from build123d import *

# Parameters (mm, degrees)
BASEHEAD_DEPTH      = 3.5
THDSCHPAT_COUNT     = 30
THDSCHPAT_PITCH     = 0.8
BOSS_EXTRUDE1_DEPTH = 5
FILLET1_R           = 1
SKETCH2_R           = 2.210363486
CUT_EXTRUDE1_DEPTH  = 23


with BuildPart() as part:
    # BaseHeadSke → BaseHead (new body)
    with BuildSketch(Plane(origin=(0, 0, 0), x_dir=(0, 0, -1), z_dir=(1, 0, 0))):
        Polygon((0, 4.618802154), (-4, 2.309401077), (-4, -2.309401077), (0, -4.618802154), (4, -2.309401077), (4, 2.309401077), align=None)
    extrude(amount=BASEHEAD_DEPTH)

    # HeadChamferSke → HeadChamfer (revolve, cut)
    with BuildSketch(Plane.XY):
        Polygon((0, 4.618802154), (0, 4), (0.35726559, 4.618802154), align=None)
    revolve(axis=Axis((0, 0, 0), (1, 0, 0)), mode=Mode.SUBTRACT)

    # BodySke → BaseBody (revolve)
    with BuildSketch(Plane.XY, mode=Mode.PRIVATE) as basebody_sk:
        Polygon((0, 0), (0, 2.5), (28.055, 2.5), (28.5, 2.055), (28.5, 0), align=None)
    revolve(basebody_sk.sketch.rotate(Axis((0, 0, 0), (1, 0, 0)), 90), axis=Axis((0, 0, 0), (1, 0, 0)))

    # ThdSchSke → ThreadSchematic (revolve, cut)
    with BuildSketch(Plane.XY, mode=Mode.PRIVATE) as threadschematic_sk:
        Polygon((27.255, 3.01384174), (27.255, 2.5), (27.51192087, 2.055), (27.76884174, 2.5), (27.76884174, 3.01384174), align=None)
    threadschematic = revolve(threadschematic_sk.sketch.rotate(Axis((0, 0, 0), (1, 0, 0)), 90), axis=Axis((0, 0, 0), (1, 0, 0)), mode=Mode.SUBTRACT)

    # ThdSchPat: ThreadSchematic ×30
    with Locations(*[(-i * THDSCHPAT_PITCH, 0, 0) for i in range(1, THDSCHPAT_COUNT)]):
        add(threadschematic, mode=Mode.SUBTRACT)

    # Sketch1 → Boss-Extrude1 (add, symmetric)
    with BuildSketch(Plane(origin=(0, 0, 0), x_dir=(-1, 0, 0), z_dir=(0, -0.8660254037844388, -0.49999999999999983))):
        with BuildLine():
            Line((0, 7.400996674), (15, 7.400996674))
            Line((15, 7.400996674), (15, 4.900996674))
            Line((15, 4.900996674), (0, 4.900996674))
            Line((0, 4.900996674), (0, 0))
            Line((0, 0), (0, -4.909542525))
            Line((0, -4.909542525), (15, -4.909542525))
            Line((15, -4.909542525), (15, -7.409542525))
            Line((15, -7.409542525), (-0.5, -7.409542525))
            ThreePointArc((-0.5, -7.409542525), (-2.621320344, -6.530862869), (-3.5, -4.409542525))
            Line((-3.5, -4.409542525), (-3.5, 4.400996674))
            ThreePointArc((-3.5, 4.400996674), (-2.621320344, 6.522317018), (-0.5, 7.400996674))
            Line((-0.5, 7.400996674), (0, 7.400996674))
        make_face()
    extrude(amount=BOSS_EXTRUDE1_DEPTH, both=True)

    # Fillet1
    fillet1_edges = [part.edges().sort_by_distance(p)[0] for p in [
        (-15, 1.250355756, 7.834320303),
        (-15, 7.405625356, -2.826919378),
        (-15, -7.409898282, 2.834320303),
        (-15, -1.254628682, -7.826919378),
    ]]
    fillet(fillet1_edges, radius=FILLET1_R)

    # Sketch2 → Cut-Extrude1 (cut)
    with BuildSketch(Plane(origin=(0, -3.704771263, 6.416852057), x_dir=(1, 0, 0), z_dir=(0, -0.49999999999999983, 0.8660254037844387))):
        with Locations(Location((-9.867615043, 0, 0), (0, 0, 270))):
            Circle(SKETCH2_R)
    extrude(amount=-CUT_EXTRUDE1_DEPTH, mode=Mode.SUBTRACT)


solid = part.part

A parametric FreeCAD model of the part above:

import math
import FreeCAD as App
import Part
import Sketcher

V = App.Vector
Q = App.Units.Quantity


def edges_at(feature, points):
    """Names of the edges that pass closest to the given points."""
    edges = feature.Shape.Edges
    near = lambda p: min(range(len(edges)), key=lambda i: edges[i].distToShape(Part.Vertex(*p))[0])
    return sorted({f"Edge{near(p) + 1}" for p in points})

doc = App.newDocument("Part")
body = doc.addObject("PartDesign::Body", "Body")

# Sketch on YZ plane
sketch1 = doc.addObject("Sketcher::SketchObject", "Sketch")
body.addObject(sketch1)
sketch1.AttachmentSupport = (doc.YZ_Plane, [""])
sketch1.MapMode = "FlatFace"
sketch1.addGeometry(Part.LineSegment(V(4.6, 0, 0), V(2.3, 4, 0)), False)
sketch1.addGeometry(Part.LineSegment(V(2.3, 4, 0), V(-2.3, 4, 0)), False)
sketch1.addGeometry(Part.LineSegment(V(-2.3, 4, 0), V(-4.6, 0, 0)), False)
sketch1.addGeometry(Part.LineSegment(V(-4.6, 0, 0), V(-2.3, -4, 0)), False)
sketch1.addGeometry(Part.LineSegment(V(-2.3, -4, 0), V(2.3, -4, 0)), False)
sketch1.addGeometry(Part.LineSegment(V(2.3, -4, 0), V(4.6, 0, 0)), False)
sketch1.addConstraint(Sketcher.Constraint("Coincident", 0, 2, 1, 1))
sketch1.addConstraint(Sketcher.Constraint("Coincident", 1, 2, 2, 1))
sketch1.addConstraint(Sketcher.Constraint("Coincident", 2, 2, 3, 1))
sketch1.addConstraint(Sketcher.Constraint("Coincident", 3, 2, 4, 1))
sketch1.addConstraint(Sketcher.Constraint("Coincident", 4, 2, 5, 1))
sketch1.addConstraint(Sketcher.Constraint("Coincident", 5, 2, 0, 1))
sketch1.addConstraint(Sketcher.Constraint("Horizontal", 1))
sketch1.addConstraint(Sketcher.Constraint("Horizontal", 4))
sketch1.addConstraint(Sketcher.Constraint("Symmetric", 0, 2, 3, 2, -1, 1))
sketch1.addConstraint(Sketcher.Constraint("Symmetric", 2, 2, 5, 2, -1, 1))
sketch1.addConstraint(Sketcher.Constraint("PointOnObject", 2, 2, -1))
sketch1.addConstraint(Sketcher.Constraint("Parallel", 2, 5))
sketch1.addConstraint(Sketcher.Constraint("Vertical", 1, 2, 3, 2))
sketch1.addConstraint(Sketcher.Constraint("Angle", 0, Q("120 deg")))
sketch1.addConstraint(Sketcher.Constraint("DistanceY", -1, 1, 0, 2, 4.0))
sketch1.addConstraint(Sketcher.Constraint("DistanceX", -1, 1, 0, 2, 2.309401))
pad1 = doc.addObject("PartDesign::Pad", "Pad")
body.addObject(pad1)
pad1.Profile = sketch1
pad1.Length = 3.5

# Sketch on XY plane
sketch2 = doc.addObject("Sketcher::SketchObject", "Sketch001")
body.addObject(sketch2)
sketch2.AttachmentSupport = (doc.XY_Plane, [""])
sketch2.MapMode = "FlatFace"
sketch2.addGeometry(Part.LineSegment(V(0, 4.62, 0), V(0, 4, 0)), False)
sketch2.addGeometry(Part.LineSegment(V(0, 4, 0), V(0.36, 4.62, 0)), False)
sketch2.addGeometry(Part.LineSegment(V(0.36, 4.62, 0), V(0, 4.62, 0)), False)
sketch2.addConstraint(Sketcher.Constraint("Coincident", 0, 2, 1, 1))
sketch2.addConstraint(Sketcher.Constraint("Coincident", 1, 2, 2, 1))
sketch2.addConstraint(Sketcher.Constraint("Coincident", 2, 2, 0, 1))
sketch2.addConstraint(Sketcher.Constraint("Vertical", 0))
sketch2.addConstraint(Sketcher.Constraint("Horizontal", 2))
sketch2.addConstraint(Sketcher.Constraint("PointOnObject", 0, 2, -2))
sketch2.addConstraint(Sketcher.Constraint("Angle", 1, Q("60 deg")))
sketch2.addConstraint(Sketcher.Constraint("DistanceY", -1, 1, 0, 2, 4.0))
sketch2.addConstraint(Sketcher.Constraint("Distance", 1, 0.714531))
groove = doc.addObject("PartDesign::Groove", "Groove")
body.addObject(groove)
groove.Profile = sketch2
groove.ReferenceAxis = (sketch2, ["H_Axis"])
groove.Angle = 360

# Sketch on XY plane
sketch3 = doc.addObject("Sketcher::SketchObject", "Sketch002")
body.addObject(sketch3)
sketch3.AttachmentSupport = (doc.XY_Plane, [""])
sketch3.MapMode = "FlatFace"
sketch3.addGeometry(Part.LineSegment(V(0, 2.5, 0), V(0, 0, 0)), False)
sketch3.addGeometry(Part.LineSegment(V(0, 0, 0), V(28.5, 0, 0)), False)
sketch3.addGeometry(Part.LineSegment(V(28.5, 0, 0), V(28.5, 2.1, 0)), False)
sketch3.addGeometry(Part.LineSegment(V(28.5, 2.1, 0), V(28.1, 2.5, 0)), False)
sketch3.addGeometry(Part.LineSegment(V(28.1, 2.5, 0), V(0, 2.5, 0)), False)
sketch3.addConstraint(Sketcher.Constraint("Coincident", 0, 2, 1, 1))
sketch3.addConstraint(Sketcher.Constraint("Coincident", 1, 2, 2, 1))
sketch3.addConstraint(Sketcher.Constraint("Coincident", 2, 2, 3, 1))
sketch3.addConstraint(Sketcher.Constraint("Coincident", 3, 2, 4, 1))
sketch3.addConstraint(Sketcher.Constraint("Coincident", 4, 2, 0, 1))
sketch3.addConstraint(Sketcher.Constraint("Vertical", 0))
sketch3.addConstraint(Sketcher.Constraint("Horizontal", 1))
sketch3.addConstraint(Sketcher.Constraint("Vertical", 2))
sketch3.addConstraint(Sketcher.Constraint("Horizontal", 4))
sketch3.addConstraint(Sketcher.Constraint("Coincident", 0, 2, -1, 1))
sketch3.addConstraint(Sketcher.Constraint("Angle", 3, Q("135 deg")))
sketch3.addConstraint(Sketcher.Constraint("DistanceX", 1, 1, 1, 2, 28.5))
sketch3.addConstraint(Sketcher.Constraint("DistanceY", 0, 2, 0, 1, 2.5))
sketch3.addConstraint(Sketcher.Constraint("DistanceX", 4, 2, 4, 1, 28.055))
revolution = doc.addObject("PartDesign::Revolution", "Revolution")
body.addObject(revolution)
revolution.Profile = sketch3
revolution.ReferenceAxis = (sketch3, ["H_Axis"])
revolution.Angle = 360

# Sketch on XY plane
sketch4 = doc.addObject("Sketcher::SketchObject", "Sketch003")
body.addObject(sketch4)
sketch4.AttachmentSupport = (doc.XY_Plane, [""])
sketch4.MapMode = "FlatFace"
sketch4.addGeometry(Part.LineSegment(V(27.3, 3, 0), V(27.3, 2.5, 0)), False)
sketch4.addGeometry(Part.LineSegment(V(27.3, 2.5, 0), V(27.5, 2.1, 0)), False)
sketch4.addGeometry(Part.LineSegment(V(27.5, 2.1, 0), V(27.8, 2.5, 0)), False)
sketch4.addGeometry(Part.LineSegment(V(27.8, 2.5, 0), V(27.8, 3, 0)), False)
sketch4.addGeometry(Part.LineSegment(V(27.8, 3, 0), V(27.3, 3, 0)), False)
sketch4.addConstraint(Sketcher.Constraint("Coincident", 0, 2, 1, 1))
sketch4.addConstraint(Sketcher.Constraint("Coincident", 1, 2, 2, 1))
sketch4.addConstraint(Sketcher.Constraint("Coincident", 2, 2, 3, 1))
sketch4.addConstraint(Sketcher.Constraint("Coincident", 3, 2, 4, 1))
sketch4.addConstraint(Sketcher.Constraint("Coincident", 4, 2, 0, 1))
sketch4.addConstraint(Sketcher.Constraint("Vertical", 0))
sketch4.addConstraint(Sketcher.Constraint("Vertical", 3))
sketch4.addConstraint(Sketcher.Constraint("Horizontal", 4))
sketch4.addConstraint(Sketcher.Constraint("Horizontal", 0, 2, 2, 2))
sketch4.addConstraint(Sketcher.Constraint("Equal", 4, 0))
sketch4.addConstraint(Sketcher.Constraint("Equal", 1, 2))
sketch4.addConstraint(Sketcher.Constraint("Angle", 1, Q("-60 deg")))
sketch4.addConstraint(Sketcher.Constraint("DistanceY", -1, 1, 0, 2, 2.5))
sketch4.addConstraint(Sketcher.Constraint("DistanceX", -1, 1, 0, 2, 27.255))
sketch4.addConstraint(Sketcher.Constraint("DistanceY", -1, 1, 1, 2, 2.055))
groove2 = doc.addObject("PartDesign::Groove", "Groove001")
body.addObject(groove2)
groove2.Profile = sketch4
groove2.ReferenceAxis = (sketch4, ["H_Axis"])
groove2.Angle = 360
doc.recompute()

linearpattern = doc.addObject("PartDesign::LinearPattern", "LinearPattern")
body.addObject(linearpattern)
linearpattern.Originals = [groove2]
linearpattern.Direction = (doc.X_Axis, [""])
linearpattern.Mode = "offset"
linearpattern.Offset = 0.8
linearpattern.Occurrences = 30
linearpattern.Reversed = True
body.Tip = linearpattern

# Sketch on an angled plane
sketch5 = doc.addObject("Sketcher::SketchObject", "Sketch004")
body.addObject(sketch5)
sketch5.Placement = App.Placement(V(0, 0, 0), App.Rotation(V(-1, 0, 0), V(0, 0.5, -0.866025404), V(0, -0.866025404, -0.5), "ZXY"))
sketch5.addGeometry(Part.LineSegment(V(15, 4.9, 0), V(15, 7.4, 0)), False)
sketch5.addGeometry(Part.LineSegment(V(15, 7.4, 0), V(-0.5, 7.4, 0)), False)
sketch5.addGeometry(Part.ArcOfCircle(Part.Circle(V(-0.5, 4.4, 0), V(0, 0, 1), 3), math.radians(90), math.radians(180)), False)
sketch5.addGeometry(Part.LineSegment(V(-3.5, 4.4, 0), V(-3.5, -4.4, 0)), False)
sketch5.addGeometry(Part.ArcOfCircle(Part.Circle(V(-0.5, -4.4, 0), V(0, 0, 1), 3), math.radians(180), math.radians(270)), False)
sketch5.addGeometry(Part.LineSegment(V(-0.5, -7.4, 0), V(15, -7.4, 0)), False)
sketch5.addGeometry(Part.LineSegment(V(15, -7.4, 0), V(15, -4.9, 0)), False)
sketch5.addGeometry(Part.LineSegment(V(15, -4.9, 0), V(0, -4.9, 0)), False)
sketch5.addGeometry(Part.LineSegment(V(0, -4.9, 0), V(0, 4.9, 0)), False)
sketch5.addGeometry(Part.LineSegment(V(0, 4.9, 0), V(15, 4.9, 0)), False)
sketch5.addConstraint(Sketcher.Constraint("Coincident", 0, 2, 1, 1))
sketch5.addConstraint(Sketcher.Constraint("Tangent", 1, 2, 2, 1))
sketch5.addConstraint(Sketcher.Constraint("Tangent", 2, 2, 3, 1))
sketch5.addConstraint(Sketcher.Constraint("Tangent", 3, 2, 4, 1))
sketch5.addConstraint(Sketcher.Constraint("Tangent", 4, 2, 5, 1))
sketch5.addConstraint(Sketcher.Constraint("Coincident", 5, 2, 6, 1))
sketch5.addConstraint(Sketcher.Constraint("Coincident", 6, 2, 7, 1))
sketch5.addConstraint(Sketcher.Constraint("Coincident", 7, 2, 8, 1))
sketch5.addConstraint(Sketcher.Constraint("Coincident", 8, 2, 9, 1))
sketch5.addConstraint(Sketcher.Constraint("Coincident", 9, 2, 0, 1))
sketch5.addConstraint(Sketcher.Constraint("Vertical", 0))
sketch5.addConstraint(Sketcher.Constraint("Horizontal", 1))
sketch5.addConstraint(Sketcher.Constraint("Vertical", 3))
sketch5.addConstraint(Sketcher.Constraint("Horizontal", 5))
sketch5.addConstraint(Sketcher.Constraint("Vertical", 6))
sketch5.addConstraint(Sketcher.Constraint("Horizontal", 7))
sketch5.addConstraint(Sketcher.Constraint("Vertical", 8))
sketch5.addConstraint(Sketcher.Constraint("Horizontal", 9))
sketch5.addConstraint(Sketcher.Constraint("Equal", 2, 4))
sketch5.addConstraint(Sketcher.Constraint("PointOnObject", 7, 2, -2))
sketch5.addConstraint(Sketcher.Constraint("Vertical", 0, 2, 5, 2))
sketch5.addConstraint(Sketcher.Constraint("Equal", 0, 6))
sketch5.addConstraint(Sketcher.Constraint("Radius", 2, 3.0))
sketch5.addConstraint(Sketcher.Constraint("DistanceX", 7, 2, 7, 1, 15.0))
sketch5.addConstraint(Sketcher.Constraint("DistanceX", 1, 2, 1, 1, 15.5))
sketch5.addConstraint(Sketcher.Constraint("DistanceY", 0, 1, 0, 2, 2.5))
sketch5.addConstraint(Sketcher.Constraint("DistanceY", 3, 2, 3, 1, 8.810539))
sketch5.addConstraint(Sketcher.Constraint("DistanceY", -1, 1, 2, 3, 4.400997))
pad2 = doc.addObject("PartDesign::Pad", "Pad001")
body.addObject(pad2)
pad2.Profile = sketch5
pad2.Length = 10
pad2.Midplane = True
doc.recompute()

fillet = doc.addObject("PartDesign::Fillet", "Fillet")
body.addObject(fillet)
fillet.Base = (pad2, edges_at(pad2, [
    (-15, 1.25, 7.834),
    (-15, 7.406, -2.827),
    (-15, -7.41, 2.834),
    (-15, -1.255, -7.827),
]))
fillet.Radius = 1

# Sketch on an angled plane
sketch6 = doc.addObject("Sketcher::SketchObject", "Sketch005")
body.addObject(sketch6)
sketch6.Placement = App.Placement(V(0, -3.704771, 6.416852), App.Rotation(V(1, 0, 0), V(0, 0.866025404, 0.5), V(0, -0.5, 0.866025404), "ZXY"))
sketch6.addGeometry(Part.Circle(V(-9.9, 0, 0), V(0, 0, 1), 2.2), False)
sketch6.addConstraint(Sketcher.Constraint("PointOnObject", 0, 3, -1))
sketch6.addConstraint(Sketcher.Constraint("Diameter", 0, 4.420727))
sketch6.addConstraint(Sketcher.Constraint("DistanceX", 0, 3, -1, 1, 9.867615))
pocket1 = doc.addObject("PartDesign::Pocket", "Pocket")
body.addObject(pocket1)
pocket1.Profile = sketch6
pocket1.Length = 23

doc.recompute()
